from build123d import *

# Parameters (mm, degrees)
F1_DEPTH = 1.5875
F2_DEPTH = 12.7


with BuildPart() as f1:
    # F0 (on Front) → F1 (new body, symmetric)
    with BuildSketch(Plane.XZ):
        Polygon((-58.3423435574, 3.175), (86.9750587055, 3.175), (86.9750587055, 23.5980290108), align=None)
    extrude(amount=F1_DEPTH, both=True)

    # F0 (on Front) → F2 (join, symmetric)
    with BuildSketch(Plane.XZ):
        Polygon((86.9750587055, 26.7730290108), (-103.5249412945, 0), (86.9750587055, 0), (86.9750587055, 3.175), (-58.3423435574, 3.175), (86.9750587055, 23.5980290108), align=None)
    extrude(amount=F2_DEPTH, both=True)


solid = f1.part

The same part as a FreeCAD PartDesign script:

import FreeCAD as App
import Part
import Sketcher

V = App.Vector
Q = App.Units.Quantity


def add_polygon(sketch, points):
    """Adds a closed chain of lines whose ends are joined by coincident constraints."""
    first, n = sketch.GeometryCount, len(points)
    for a, b in zip(points, points[1:] + points[:1]):
        sketch.addGeometry(Part.LineSegment(App.Vector(*a, 0), App.Vector(*b, 0)), False)
    for i in range(n):
        sketch.addConstraint(Sketcher.Constraint("Coincident", first + i, 2, first + (i + 1) % n, 1))

doc = App.newDocument("Part")
params = doc.addObject("Spreadsheet::Sheet", "Params")
for row, (alias, value) in enumerate([
    ("pad1_length", "0.125 in"),
    ("sketch2_width", "7.5 in"),
    ("sketch2_height", "0.125 in"),
    ("pad2_length", "1 in"),
], start=1):
    params.set(f"A{row}", alias)
    params.set(f"B{row}", "=" + value)
    params.setAlias(f"B{row}", alias)

body = doc.addObject("PartDesign::Body", "Body")

# Sketch on XZ plane
sketch1 = doc.addObject("Sketcher::SketchObject", "Sketch")
body.addObject(sketch1)
sketch1.AttachmentSupport = (doc.XZ_Plane, [""])
sketch1.MapMode = "FlatFace"
add_polygon(sketch1, [(-58, 3), (87, 3), (87, 24)])  # lines 0-2
sketch1.addConstraint([
    Sketcher.Constraint("Horizontal", 0),
    Sketcher.Constraint("Vertical", 1),
    Sketcher.Constraint("Angle", 2, Q("-172 deg")),
    Sketcher.Constraint("DistanceY", -1, 1, 0, 2, Q("0.125 in")),
    Sketcher.Constraint("DistanceY", 1, 1, 1, 2, Q("20.423029 mm")),
    Sketcher.Constraint("DistanceX", -1, 1, 0, 2, Q("86.975059 mm")),
])
pad1 = doc.addObject("PartDesign::Pad", "Pad")
body.addObject(pad1)
pad1.Profile = sketch1
pad1.setExpression("Length", "Params.pad1_length")
pad1.Midplane = True

# Sketch on XZ plane
sketch2 = doc.addObject("Sketcher::SketchObject", "Sketch001")
body.addObject(sketch2)
sketch2.AttachmentSupport = (doc.XZ_Plane, [""])
sketch2.MapMode = "FlatFace"
add_polygon(sketch2, [(87, 26.8), (-103.5, 0), (87, 0), (87, 3.2), (-58.3, 3.2), (87, 23.6)])  # lines 0-5
sketch2.addConstraint([
    Sketcher.Constraint("Horizontal", 1),
    Sketcher.Constraint("Vertical", 2),
    Sketcher.Constraint("Horizontal", 3),
    Sketcher.Constraint("Vertical", 5),
    Sketcher.Constraint("PointOnObject", 0, 2, -1),
    Sketcher.Constraint("Parallel", 0, 4),
    Sketcher.Constraint("Vertical", 2, 2, 4, 2),
    Sketcher.Constraint("Equal", 2, 5),
    Sketcher.Constraint("DistanceX", 1, 1, 1, 2, Q("7.5 in")),
    Sketcher.Constraint("Angle", 0, Q("-172 deg")),
    Sketcher.Constraint("DistanceY", 2, 1, 2, 2, Q("0.125 in")),
    Sketcher.Constraint("DistanceX", 0, 2, -1, 1, Q("103.524941 mm")),
])
sketch2.setExpression("Constraints[14]", "Params.sketch2_width")
sketch2.setExpression("Constraints[16]", "Params.sketch2_height")
pad2 = doc.addObject("PartDesign::Pad", "Pad001")
body.addObject(pad2)
pad2.Profile = sketch2
pad2.setExpression("Length", "Params.pad2_length")
pad2.Midplane = True

doc.recompute()
